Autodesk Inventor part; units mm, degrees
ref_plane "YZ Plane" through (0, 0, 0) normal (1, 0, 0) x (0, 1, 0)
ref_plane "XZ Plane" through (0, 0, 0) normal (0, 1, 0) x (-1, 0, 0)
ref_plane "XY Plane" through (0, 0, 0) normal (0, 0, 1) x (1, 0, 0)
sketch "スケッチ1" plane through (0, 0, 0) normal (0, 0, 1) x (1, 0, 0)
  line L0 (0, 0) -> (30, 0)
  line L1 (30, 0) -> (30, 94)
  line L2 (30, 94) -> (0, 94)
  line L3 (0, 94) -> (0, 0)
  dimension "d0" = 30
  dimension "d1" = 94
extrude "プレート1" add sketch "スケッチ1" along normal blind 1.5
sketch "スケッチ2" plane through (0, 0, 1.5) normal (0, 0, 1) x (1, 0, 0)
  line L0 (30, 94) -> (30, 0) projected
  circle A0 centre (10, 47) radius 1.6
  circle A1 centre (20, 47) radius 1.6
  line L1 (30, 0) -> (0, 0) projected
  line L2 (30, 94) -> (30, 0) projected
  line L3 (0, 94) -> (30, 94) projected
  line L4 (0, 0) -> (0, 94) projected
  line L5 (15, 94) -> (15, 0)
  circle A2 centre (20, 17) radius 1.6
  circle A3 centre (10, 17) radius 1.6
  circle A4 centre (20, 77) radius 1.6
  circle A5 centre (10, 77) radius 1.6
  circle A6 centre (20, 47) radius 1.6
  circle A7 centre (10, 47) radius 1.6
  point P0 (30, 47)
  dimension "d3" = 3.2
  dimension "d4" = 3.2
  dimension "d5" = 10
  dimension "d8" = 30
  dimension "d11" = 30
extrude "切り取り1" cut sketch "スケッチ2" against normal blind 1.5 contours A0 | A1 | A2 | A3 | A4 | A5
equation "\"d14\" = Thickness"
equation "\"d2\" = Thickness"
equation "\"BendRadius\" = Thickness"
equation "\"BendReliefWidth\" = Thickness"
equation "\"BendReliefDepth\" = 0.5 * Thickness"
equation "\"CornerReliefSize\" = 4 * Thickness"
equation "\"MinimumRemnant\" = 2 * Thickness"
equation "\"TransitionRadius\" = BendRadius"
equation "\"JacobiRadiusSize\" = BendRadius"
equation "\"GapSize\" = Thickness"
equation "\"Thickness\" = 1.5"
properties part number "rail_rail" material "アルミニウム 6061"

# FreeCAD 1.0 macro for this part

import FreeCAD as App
import Part
import Sketcher
from FreeCAD import Vector
Q = App.Units.Quantity


def add_polygon(sketch, points):
    """Adds a closed chain of lines whose ends are joined by coincident constraints."""
    first, n = sketch.GeometryCount, len(points)
    for a, b in zip(points, points[1:] + points[:1]):
        sketch.addGeometry(Part.LineSegment(App.Vector(*a, 0), App.Vector(*b, 0)), False)
    for i in range(n):
        sketch.addConstraint(Sketcher.Constraint("Coincident", first + i, 2, first + (i + 1) % n, 1))

doc = App.newDocument("Part")
params = doc.addObject("Spreadsheet::Sheet", "Params")
for row, (alias, value) in enumerate([
    ("sketch1_width", "30 mm"),
    ("sketch1_height", "94 mm"),
    ("pad1_length", "1.5 mm"),
    ("sketch2_diameter", "3.2 mm"),
    ("pocket1_length", "1.5 mm"),
], start=1):
    params.set(f"A{row}", alias)
    params.set(f"B{row}", "=" + value)
    params.setAlias(f"B{row}", alias)

body = doc.addObject("PartDesign::Body", "Body")

# Sketch on XY plane
sketch1 = body.newObject("Sketcher::SketchObject", "Sketch")
sketch1.AttachmentSupport = (doc.getObject("XY_Plane"), [""])
sketch1.MapMode = "FlatFace"
add_polygon(sketch1, [(0, 94), (0, 0), (30, 0), (30, 94)])  # lines 0-3
sketch1.addConstraint([
    Sketcher.Constraint("Vertical", 0),
    Sketcher.Constraint("Horizontal", 1),
    Sketcher.Constraint("Vertical", 2),
    Sketcher.Constraint("Horizontal", 3),
    Sketcher.Constraint("Coincident", 0, 2, -1, 1),
    Sketcher.Constraint("DistanceX", 1, 1, 1, 2, Q("30 mm")),
    Sketcher.Constraint("DistanceY", 0, 2, 0, 1, Q("94 mm")),
])
sketch1.setExpression("Constraints[9]", "Params.sketch1_width")
sketch1.setExpression("Constraints[10]", "Params.sketch1_height")
pad1 = body.newObject("PartDesign::Pad", "Pad")
pad1.Profile = sketch1
pad1.setExpression("Length", "Params.pad1_length")

# Sketch on XY plane
sketch2 = body.newObject("Sketcher::SketchObject", "Sketch001")
sketch2.AttachmentSupport = (doc.getObject("XY_Plane"), [""])
sketch2.MapMode = "FlatFace"
sketch2.AttachmentOffset = App.Placement(Vector(0, 0, 1.5), App.Rotation())
sketch2.addGeometry([
    Part.Circle(Vector(10, 47, 0), Vector(0, 0, 1), 1.6),  # 0
    Part.Circle(Vector(20, 47, 0), Vector(0, 0, 1), 1.6),  # 1
    Part.Circle(Vector(20, 17, 0), Vector(0, 0, 1), 1.6),  # 2
    Part.Circle(Vector(10, 17, 0), Vector(0, 0, 1), 1.6),  # 3
    Part.Circle(Vector(20, 77, 0), Vector(0, 0, 1), 1.6),  # 4
    Part.Circle(Vector(10, 77, 0), Vector(0, 0, 1), 1.6),  # 5
], False)
sketch2.addConstraint([
    Sketcher.Constraint("Equal", 0, 1),
    Sketcher.Constraint("Equal", 1, 2),
    Sketcher.Constraint("Equal", 2, 3),
    Sketcher.Constraint("Equal", 3, 4),
    Sketcher.Constraint("Equal", 4, 5),
    Sketcher.Constraint("Horizontal", 0, 3, 1, 3),
    Sketcher.Constraint("Horizontal", 2, 3, 3, 3),
    Sketcher.Constraint("Horizontal", 4, 3, 5, 3),
    Sketcher.Constraint("Vertical", 1, 3, 2, 3),
    Sketcher.Constraint("Vertical", 0, 3, 3, 3),
    Sketcher.Constraint("Vertical", 2, 3, 4, 3),
    Sketcher.Constraint("Vertical", 3, 3, 5, 3),
    Sketcher.Constraint("Diameter", 0, Q("3.2 mm")),
    Sketcher.Constraint("DistanceX", -1, 1, 0, 3, Q("10 mm")),
    Sketcher.Constraint("DistanceX", 0, 3, 1, 3, Q("10 mm")),
    Sketcher.Constraint("DistanceY", 2, 3, 1, 3, Q("30 mm")),
    Sketcher.Constraint("DistanceY", 1, 3, 4, 3, Q("30 mm")),
    Sketcher.Constraint("DistanceY", -1, 1, 0, 3, Q("47 mm")),
])
sketch2.setExpression("Constraints[12]", "Params.sketch2_diameter")
pocket1 = body.newObject("PartDesign::Pocket", "Pocket")
pocket1.Profile = sketch2
pocket1.setExpression("Length", "Params.pocket1_length")

doc.recompute()
